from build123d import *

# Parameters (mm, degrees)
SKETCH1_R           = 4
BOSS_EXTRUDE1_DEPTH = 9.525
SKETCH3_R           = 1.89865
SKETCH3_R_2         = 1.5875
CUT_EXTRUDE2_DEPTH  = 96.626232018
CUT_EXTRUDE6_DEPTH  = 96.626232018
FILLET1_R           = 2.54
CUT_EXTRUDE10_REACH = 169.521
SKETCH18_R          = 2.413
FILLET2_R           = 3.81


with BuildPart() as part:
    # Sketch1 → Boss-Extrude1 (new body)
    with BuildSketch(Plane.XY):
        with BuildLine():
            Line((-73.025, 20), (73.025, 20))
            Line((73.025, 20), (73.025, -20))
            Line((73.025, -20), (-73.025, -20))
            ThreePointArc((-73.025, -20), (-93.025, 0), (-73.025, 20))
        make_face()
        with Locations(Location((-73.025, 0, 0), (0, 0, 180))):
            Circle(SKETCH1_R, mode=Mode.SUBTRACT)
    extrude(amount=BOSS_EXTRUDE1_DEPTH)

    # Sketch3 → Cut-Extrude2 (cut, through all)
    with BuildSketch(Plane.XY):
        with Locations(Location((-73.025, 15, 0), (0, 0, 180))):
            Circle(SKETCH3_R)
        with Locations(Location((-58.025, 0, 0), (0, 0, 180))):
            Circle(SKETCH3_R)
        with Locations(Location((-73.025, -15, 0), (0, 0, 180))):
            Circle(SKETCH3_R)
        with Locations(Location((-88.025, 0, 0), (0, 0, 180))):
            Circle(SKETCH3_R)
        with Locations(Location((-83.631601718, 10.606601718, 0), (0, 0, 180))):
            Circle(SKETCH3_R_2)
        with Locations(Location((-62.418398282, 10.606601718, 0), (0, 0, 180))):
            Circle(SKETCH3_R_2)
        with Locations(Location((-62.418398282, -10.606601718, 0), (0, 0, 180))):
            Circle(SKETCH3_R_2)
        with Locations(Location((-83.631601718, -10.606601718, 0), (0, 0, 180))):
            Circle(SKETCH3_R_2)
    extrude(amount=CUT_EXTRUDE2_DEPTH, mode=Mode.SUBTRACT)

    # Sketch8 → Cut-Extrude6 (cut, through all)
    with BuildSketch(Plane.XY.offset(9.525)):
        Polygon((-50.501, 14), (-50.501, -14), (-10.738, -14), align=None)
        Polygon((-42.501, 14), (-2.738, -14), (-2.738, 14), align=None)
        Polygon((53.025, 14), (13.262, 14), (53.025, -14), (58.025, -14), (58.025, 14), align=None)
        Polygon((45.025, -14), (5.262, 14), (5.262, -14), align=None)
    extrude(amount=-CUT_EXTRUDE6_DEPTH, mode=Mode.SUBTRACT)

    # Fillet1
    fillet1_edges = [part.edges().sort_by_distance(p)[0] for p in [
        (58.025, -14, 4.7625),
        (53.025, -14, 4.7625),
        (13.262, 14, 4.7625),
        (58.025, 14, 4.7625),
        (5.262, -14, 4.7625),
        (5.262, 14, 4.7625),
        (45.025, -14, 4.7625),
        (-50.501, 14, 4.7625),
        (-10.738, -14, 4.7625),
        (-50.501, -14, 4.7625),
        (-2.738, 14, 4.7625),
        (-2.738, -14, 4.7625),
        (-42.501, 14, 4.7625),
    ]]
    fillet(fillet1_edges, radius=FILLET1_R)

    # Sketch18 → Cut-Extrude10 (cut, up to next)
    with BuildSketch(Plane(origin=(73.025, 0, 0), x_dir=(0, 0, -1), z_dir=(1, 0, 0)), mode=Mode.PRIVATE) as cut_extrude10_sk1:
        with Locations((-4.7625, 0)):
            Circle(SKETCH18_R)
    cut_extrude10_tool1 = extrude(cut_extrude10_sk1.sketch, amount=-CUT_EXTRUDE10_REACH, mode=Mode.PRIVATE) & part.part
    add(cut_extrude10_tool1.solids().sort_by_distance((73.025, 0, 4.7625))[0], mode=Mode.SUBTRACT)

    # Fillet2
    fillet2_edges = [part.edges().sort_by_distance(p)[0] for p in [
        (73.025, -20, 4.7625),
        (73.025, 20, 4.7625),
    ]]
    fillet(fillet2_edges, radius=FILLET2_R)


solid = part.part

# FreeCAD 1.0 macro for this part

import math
import FreeCAD as App
import Part
import Sketcher
Q = App.Units.Quantity


def edges_at(feature, points):
    """Names of the edges that pass closest to the given points."""
    edges = feature.Shape.Edges
    near = lambda p: min(range(len(edges)), key=lambda i: edges[i].distToShape(Part.Vertex(*p))[0])
    return sorted({f"Edge{near(p) + 1}" for p in points})


def add_polygon(sketch, points):
    """Adds a closed chain of lines whose ends are joined by coincident constraints."""
    first, n = sketch.GeometryCount, len(points)
    for a, b in zip(points, points[1:] + points[:1]):
        sketch.addGeometry(Part.LineSegment(App.Vector(*a, 0), App.Vector(*b, 0)), False)
    for i in range(n):
        sketch.addConstraint(Sketcher.Constraint("Coincident", first + i, 2, first + (i + 1) % n, 1))

doc = App.newDocument("Part")
body = doc.addObject("PartDesign::Body", "Body")

# Sketch on XY plane
sketch1 = body.newObject("Sketcher::SketchObject", "Sketch")
sketch1.AttachmentSupport = (doc.getObject("XY_Plane"), [""])
sketch1.MapMode = "FlatFace"
sketch1.addGeometry([
    Part.LineSegment(App.Vector(73, 20, 0), App.Vector(-73, 20, 0)),  # 0
    Part.ArcOfCircle(Part.Circle(App.Vector(-73, 0, 0), App.Vector(0, 0, 1), 20), math.radians(90), math.radians(270)),  # 1
    Part.LineSegment(App.Vector(-73, -20, 0), App.Vector(73, -20, 0)),  # 2
    Part.LineSegment(App.Vector(73, -20, 0), App.Vector(73, 20, 0)),  # 3
    Part.Circle(App.Vector(-73, 0, 0), App.Vector(0, 0, 1), 4),  # 4
], False)
sketch1.addConstraint([
    Sketcher.Constraint("Tangent", 0, 2, 1, 1),
    Sketcher.Constraint("Tangent", 1, 2, 2, 1),
    Sketcher.Constraint("Coincident", 2, 2, 3, 1),
    Sketcher.Constraint("Coincident", 3, 2, 0, 1),
    Sketcher.Constraint("Horizontal", 0),
    Sketcher.Constraint("Horizontal", 2),
    Sketcher.Constraint("Vertical", 3),
    Sketcher.Constraint("Coincident", 4, 3, 1, 3),
    Sketcher.Constraint("Symmetric", 0, 2, 2, 2, -1, 1),
    Sketcher.Constraint("DistanceX", 0, 2, 0, 1, Q("5.75 in")),
    Sketcher.Constraint("Diameter", 4, 8.0),
    Sketcher.Constraint("Radius", 1, 20.0),
])
pad1 = body.newObject("PartDesign::Pad", "Pad")
pad1.Profile = sketch1
pad1.Length = Q("0.375 in")

# Sketch on XY plane
sketch2 = body.newObject("Sketcher::SketchObject", "Sketch001")
sketch2.AttachmentSupport = (doc.getObject("XY_Plane"), [""])
sketch2.MapMode = "FlatFace"
sketch2.addGeometry([
    Part.Circle(App.Vector(-73, 15, 0), App.Vector(0, 0, 1), 1.9),  # 0
    Part.Circle(App.Vector(-58, 0, 0), App.Vector(0, 0, 1), 1.9),  # 1
    Part.Circle(App.Vector(-73, -15, 0), App.Vector(0, 0, 1), 1.9),  # 2
    Part.Circle(App.Vector(-88, 0, 0), App.Vector(0, 0, 1), 1.9),  # 3
    Part.Circle(App.Vector(-83.6, 10.6, 0), App.Vector(0, 0, 1), 1.6),  # 4
    Part.Circle(App.Vector(-62.4, 10.6, 0), App.Vector(0, 0, 1), 1.6),  # 5
    Part.Circle(App.Vector(-62.4, -10.6, 0), App.Vector(0, 0, 1), 1.6),  # 6
    Part.Circle(App.Vector(-83.6, -10.6, 0), App.Vector(0, 0, 1), 1.6),  # 7
], False)
sketch2.addConstraint([
    Sketcher.Constraint("Equal", 0, 1),
    Sketcher.Constraint("Equal", 1, 2),
    Sketcher.Constraint("Equal", 2, 3),
    Sketcher.Constraint("Equal", 4, 5),
    Sketcher.Constraint("Equal", 5, 6),
    Sketcher.Constraint("Equal", 6, 7),
    Sketcher.Constraint("Symmetric", 0, 3, 2, 3, -1),
    Sketcher.Constraint("Symmetric", 5, 3, 6, 3, -1),
    Sketcher.Constraint("Symmetric", 4, 3, 7, 3, -1),
    Sketcher.Constraint("PointOnObject", 1, 3, -1),
    Sketcher.Constraint("PointOnObject", 3, 3, -1),
    Sketcher.Constraint("Horizontal", 4, 3, 5, 3),
    Sketcher.Constraint("Diameter", 4, Q("0.125 in")),
    Sketcher.Constraint("Diameter", 0, Q("0.1495 in")),
    Sketcher.Constraint("DistanceX", 0, 3, -1, 1, Q("2.875 in")),
    Sketcher.Constraint("DistanceY", -1, 1, 0, 3, 15.0),
    Sketcher.Constraint("DistanceX", 1, 3, -1, 1, 58.025),
    Sketcher.Constraint("DistanceX", 3, 3, -1, 1, 88.025),
    Sketcher.Constraint("DistanceX", 4, 3, -1, 1, 83.631602),
    Sketcher.Constraint("DistanceY", -1, 1, 4, 3, 10.606602),
    Sketcher.Constraint("DistanceX", 5, 3, -1, 1, 62.418398),
])
pocket1 = body.newObject("PartDesign::Pocket", "Pocket")
pocket1.Profile = sketch2
pocket1.Type = "ThroughAll"
pocket1.Reversed = True

# Sketch on XY plane
sketch3 = body.newObject("Sketcher::SketchObject", "Sketch002")
sketch3.AttachmentSupport = (doc.getObject("XY_Plane"), [""])
sketch3.MapMode = "FlatFace"
sketch3.AttachmentOffset = App.Placement(App.Vector(0, 0, 0.375 * 25.4), App.Rotation())
add_polygon(sketch3, [(-51, 14), (-51, -14), (-11, -14)])  # lines 0-2
add_polygon(sketch3, [(-43, 14), (-3, -14), (-3, 14)])  # lines 3-5
add_polygon(sketch3, [(13, 14), (53, -14), (58, -14), (58, 14)])  # lines 6-9
add_polygon(sketch3, [(45, -14), (5, 14), (5, -14)])  # lines 10-12
sketch3.addConstraint([
    Sketcher.Constraint("Vertical", 0),
    Sketcher.Constraint("Horizontal", 1),
    Sketcher.Constraint("Vertical", 4),
    Sketcher.Constraint("Horizontal", 5),
    Sketcher.Constraint("Horizontal", 7),
    Sketcher.Constraint("Vertical", 8),
    Sketcher.Constraint("Horizontal", 9),
    Sketcher.Constraint("Vertical", 11),
    Sketcher.Constraint("Horizontal", 12),
    Sketcher.Constraint("Parallel", 2, 3),
    Sketcher.Constraint("Parallel", 3, 6),
    Sketcher.Constraint("Parallel", 6, 10),
    Sketcher.Constraint("Horizontal", 1, 2, 3, 2),
    Sketcher.Constraint("Horizontal", 2, 2, 4, 2),
    Sketcher.Constraint("Horizontal", 3, 2, 6, 2),
    Sketcher.Constraint("Horizontal", 5, 2, 8, 2),
    Sketcher.Constraint("Horizontal", 9, 2, 10, 2),
    Sketcher.Constraint("Horizontal", 7, 2, 11, 2),
    Sketcher.Constraint("DistanceX", 1, 1, 1, 2, 39.763),
    Sketcher.Constraint("DistanceX", 7, 1, 7, 2, 5.0),
    Sketcher.Constraint("DistanceY", 0, 2, 0, 1, 28.0),
    Sketcher.Constraint("DistanceX", 0, 2, -1, 1, 50.501),
    Sketcher.Constraint("DistanceY", 0, 2, -1, 1, 14.0),
    Sketcher.Constraint("DistanceX", 3, 2, -1, 1, 2.738),
    Sketcher.Constraint("DistanceX", -1, 1, 6, 2, 53.025),
    Sketcher.Constraint("DistanceX", -1, 1, 10, 2, 5.262),
])
pocket2 = body.newObject("PartDesign::Pocket", "Pocket001")
pocket2.Profile = sketch3
pocket2.Type = "ThroughAll"
doc.recompute()

fillet = body.newObject("PartDesign::Fillet", "Fillet")
fillet.Base = (pocket2, edges_at(pocket2, [
    (58.025, -14, 4.763),
    (53.025, -14, 4.763),
    (13.262, 14, 4.763),
    (58.025, 14, 4.763),
    (5.262, -14, 4.763),
    (5.262, 14, 4.763),
    (45.025, -14, 4.763),
    (-50.501, 14, 4.763),
    (-10.738, -14, 4.763),
    (-50.501, -14, 4.763),
    (-2.738, 14, 4.763),
    (-2.738, -14, 4.763),
    (-42.501, 14, 4.763),
]))
fillet.Radius = Q("0.1 in")

# Sketch on YZ plane
sketch4 = body.newObject("Sketcher::SketchObject", "Sketch003")
sketch4.AttachmentSupport = (doc.getObject("YZ_Plane"), [""])
sketch4.MapMode = "FlatFace"
sketch4.AttachmentOffset = App.Placement(App.Vector(0, 0, 2.875 * 25.4), App.Rotation())
sketch4.addGeometry(Part.Circle(App.Vector(0, 4.8, 0), App.Vector(0, 0, 1), 2.4), False)
sketch4.addConstraint([
    Sketcher.Constraint("PointOnObject", 0, 3, -2),
    Sketcher.Constraint("Diameter", 0, Q("0.19 in")),
    Sketcher.Constraint("DistanceY", -1, 1, 0, 3, Q("0.1875 in")),
])
pocket3 = body.newObject("PartDesign::Pocket", "Pocket002")
pocket3.Profile = sketch4
pocket3.Type = "UpToFirst"
doc.recompute()

fillet2 = body.newObject("PartDesign::Fillet", "Fillet001")
fillet2.Base = (pocket3, edges_at(pocket3, [(73.025, -20, 4.763), (73.025, 20, 4.763)]))
fillet2.Radius = Q("0.15 in")

doc.recompute()
